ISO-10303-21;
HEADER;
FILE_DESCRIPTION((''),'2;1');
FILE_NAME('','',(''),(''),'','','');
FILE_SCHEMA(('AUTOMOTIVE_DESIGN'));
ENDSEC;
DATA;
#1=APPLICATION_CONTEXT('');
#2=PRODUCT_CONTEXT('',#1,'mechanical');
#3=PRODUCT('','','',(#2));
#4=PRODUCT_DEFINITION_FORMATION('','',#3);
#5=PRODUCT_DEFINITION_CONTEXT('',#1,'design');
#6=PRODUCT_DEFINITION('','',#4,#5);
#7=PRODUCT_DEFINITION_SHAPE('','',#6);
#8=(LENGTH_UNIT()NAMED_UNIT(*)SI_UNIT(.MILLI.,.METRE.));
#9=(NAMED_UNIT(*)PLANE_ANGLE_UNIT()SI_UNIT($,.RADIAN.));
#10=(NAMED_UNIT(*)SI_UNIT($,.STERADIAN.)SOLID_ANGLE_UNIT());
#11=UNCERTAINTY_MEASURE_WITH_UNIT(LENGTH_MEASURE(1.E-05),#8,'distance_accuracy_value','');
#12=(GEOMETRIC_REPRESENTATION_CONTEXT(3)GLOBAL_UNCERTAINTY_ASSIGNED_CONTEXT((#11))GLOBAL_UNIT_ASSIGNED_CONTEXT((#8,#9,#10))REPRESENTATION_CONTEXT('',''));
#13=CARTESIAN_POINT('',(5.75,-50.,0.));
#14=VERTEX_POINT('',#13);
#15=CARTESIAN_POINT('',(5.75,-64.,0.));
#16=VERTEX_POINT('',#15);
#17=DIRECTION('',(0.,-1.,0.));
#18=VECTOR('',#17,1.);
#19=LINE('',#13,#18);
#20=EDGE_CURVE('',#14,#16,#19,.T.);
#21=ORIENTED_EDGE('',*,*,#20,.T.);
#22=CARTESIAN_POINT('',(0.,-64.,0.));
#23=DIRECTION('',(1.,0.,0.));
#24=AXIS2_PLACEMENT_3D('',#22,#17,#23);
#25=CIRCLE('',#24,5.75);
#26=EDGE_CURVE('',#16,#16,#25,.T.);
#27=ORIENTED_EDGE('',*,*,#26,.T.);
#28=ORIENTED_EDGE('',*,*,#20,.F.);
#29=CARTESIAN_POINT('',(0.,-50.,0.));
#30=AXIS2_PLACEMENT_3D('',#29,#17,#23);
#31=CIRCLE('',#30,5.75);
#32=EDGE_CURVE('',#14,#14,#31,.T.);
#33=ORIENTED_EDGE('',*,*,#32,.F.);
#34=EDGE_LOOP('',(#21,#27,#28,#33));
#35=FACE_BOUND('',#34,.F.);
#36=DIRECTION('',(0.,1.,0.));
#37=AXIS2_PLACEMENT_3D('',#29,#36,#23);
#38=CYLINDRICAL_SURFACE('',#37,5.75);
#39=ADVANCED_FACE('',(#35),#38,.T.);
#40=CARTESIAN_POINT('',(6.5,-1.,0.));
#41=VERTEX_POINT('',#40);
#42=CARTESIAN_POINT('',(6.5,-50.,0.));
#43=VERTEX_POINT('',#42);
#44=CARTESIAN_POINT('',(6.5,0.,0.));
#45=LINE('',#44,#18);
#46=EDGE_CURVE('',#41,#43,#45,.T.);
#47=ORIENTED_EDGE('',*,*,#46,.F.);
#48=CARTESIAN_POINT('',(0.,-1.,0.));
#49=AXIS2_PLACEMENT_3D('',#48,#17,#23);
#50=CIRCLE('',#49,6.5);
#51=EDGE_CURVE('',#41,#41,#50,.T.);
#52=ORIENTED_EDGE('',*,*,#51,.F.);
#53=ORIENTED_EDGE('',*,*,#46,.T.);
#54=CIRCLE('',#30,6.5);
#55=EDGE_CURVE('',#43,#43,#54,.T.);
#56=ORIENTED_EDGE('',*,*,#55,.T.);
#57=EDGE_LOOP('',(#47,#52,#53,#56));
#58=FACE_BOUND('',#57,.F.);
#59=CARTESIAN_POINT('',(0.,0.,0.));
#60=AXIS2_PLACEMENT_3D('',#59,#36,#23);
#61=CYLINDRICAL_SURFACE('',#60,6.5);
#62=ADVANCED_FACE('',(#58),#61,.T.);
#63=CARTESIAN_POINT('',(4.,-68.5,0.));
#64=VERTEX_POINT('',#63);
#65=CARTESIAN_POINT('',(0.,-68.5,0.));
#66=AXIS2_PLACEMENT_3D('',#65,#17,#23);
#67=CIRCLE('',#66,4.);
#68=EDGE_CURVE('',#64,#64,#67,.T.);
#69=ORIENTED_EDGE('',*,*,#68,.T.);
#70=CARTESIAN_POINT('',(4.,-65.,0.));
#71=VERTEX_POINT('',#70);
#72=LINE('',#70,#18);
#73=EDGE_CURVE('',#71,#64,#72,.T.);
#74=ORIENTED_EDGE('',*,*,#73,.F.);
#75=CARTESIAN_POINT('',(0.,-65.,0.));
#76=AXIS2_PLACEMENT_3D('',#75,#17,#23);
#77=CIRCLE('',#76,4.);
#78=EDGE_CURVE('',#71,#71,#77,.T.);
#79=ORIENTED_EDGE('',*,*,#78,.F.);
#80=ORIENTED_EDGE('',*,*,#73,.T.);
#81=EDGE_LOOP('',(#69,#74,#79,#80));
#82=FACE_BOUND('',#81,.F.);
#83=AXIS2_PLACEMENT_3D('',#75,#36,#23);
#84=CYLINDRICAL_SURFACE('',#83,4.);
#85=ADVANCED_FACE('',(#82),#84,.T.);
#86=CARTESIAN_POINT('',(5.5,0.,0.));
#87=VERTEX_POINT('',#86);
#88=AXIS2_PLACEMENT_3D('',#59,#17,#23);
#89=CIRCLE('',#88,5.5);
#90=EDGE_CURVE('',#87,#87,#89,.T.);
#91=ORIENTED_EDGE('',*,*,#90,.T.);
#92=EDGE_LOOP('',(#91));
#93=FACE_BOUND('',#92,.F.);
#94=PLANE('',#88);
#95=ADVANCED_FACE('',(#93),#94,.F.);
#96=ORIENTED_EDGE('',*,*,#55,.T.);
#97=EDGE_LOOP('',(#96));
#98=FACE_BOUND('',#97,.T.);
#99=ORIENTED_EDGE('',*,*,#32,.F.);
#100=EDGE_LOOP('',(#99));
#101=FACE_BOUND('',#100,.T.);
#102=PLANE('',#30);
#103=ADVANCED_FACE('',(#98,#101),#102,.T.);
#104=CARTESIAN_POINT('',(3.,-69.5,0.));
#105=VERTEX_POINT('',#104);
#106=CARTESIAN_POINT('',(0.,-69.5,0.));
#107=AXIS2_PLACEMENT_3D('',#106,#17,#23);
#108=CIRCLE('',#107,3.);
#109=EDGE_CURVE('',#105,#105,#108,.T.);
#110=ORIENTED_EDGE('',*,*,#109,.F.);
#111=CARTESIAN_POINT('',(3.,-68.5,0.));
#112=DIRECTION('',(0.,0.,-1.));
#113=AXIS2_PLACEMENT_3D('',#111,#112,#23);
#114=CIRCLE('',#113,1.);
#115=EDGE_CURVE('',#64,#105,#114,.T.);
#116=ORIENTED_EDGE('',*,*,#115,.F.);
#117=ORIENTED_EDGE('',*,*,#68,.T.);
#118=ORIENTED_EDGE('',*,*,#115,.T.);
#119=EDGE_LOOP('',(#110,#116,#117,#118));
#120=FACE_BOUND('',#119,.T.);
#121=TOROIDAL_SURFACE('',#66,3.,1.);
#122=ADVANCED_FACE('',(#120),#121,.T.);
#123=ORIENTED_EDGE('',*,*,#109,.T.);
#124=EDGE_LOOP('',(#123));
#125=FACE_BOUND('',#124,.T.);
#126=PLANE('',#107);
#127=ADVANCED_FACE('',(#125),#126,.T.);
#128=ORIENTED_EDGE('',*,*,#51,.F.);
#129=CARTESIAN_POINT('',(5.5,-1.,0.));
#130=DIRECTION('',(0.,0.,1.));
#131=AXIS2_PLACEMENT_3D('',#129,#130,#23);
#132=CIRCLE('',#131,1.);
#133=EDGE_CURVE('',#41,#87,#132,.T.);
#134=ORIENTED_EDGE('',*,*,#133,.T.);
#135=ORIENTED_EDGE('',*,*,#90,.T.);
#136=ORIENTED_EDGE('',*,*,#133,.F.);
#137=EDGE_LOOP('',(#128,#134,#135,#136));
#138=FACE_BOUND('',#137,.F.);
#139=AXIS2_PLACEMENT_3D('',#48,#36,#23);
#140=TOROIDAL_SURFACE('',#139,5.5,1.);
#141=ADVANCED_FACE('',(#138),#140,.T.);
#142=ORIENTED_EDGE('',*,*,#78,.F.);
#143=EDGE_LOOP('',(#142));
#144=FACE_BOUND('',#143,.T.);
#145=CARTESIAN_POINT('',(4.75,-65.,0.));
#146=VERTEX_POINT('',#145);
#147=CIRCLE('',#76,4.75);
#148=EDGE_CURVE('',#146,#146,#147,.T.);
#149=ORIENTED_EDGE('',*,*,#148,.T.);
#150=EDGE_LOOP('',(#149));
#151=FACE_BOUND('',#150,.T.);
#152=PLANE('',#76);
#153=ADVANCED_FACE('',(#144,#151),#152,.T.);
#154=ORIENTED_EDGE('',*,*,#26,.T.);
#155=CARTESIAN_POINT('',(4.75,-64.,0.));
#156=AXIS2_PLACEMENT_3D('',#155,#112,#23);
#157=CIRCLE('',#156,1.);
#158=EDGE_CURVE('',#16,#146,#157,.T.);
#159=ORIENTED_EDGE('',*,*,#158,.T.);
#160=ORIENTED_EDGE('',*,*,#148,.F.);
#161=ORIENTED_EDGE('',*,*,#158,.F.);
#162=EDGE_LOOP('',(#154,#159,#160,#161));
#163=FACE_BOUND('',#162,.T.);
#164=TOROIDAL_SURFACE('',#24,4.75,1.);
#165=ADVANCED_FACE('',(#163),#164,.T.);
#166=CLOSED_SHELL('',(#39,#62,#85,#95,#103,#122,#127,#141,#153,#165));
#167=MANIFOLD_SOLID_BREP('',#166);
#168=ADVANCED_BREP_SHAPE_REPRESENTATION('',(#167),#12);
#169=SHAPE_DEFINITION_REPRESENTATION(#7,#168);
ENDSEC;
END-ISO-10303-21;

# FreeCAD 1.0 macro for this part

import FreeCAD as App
import Part
import Sketcher
from FreeCAD import Vector


def edges_at(feature, points):
    """Names of the edges that pass closest to the given points."""
    edges = feature.Shape.Edges
    near = lambda p: min(range(len(edges)), key=lambda i: edges[i].distToShape(Part.Vertex(*p))[0])
    return sorted({f"Edge{near(p) + 1}" for p in points})

doc = App.newDocument("Part")
body = doc.addObject("PartDesign::Body", "Body")

# Sketch on XZ plane
sketch1 = body.newObject("Sketcher::SketchObject", "Sketch")
sketch1.AttachmentSupport = (doc.getObject("XZ_Plane"), [""])
sketch1.MapMode = "FlatFace"
sketch1.addGeometry(Part.Circle(Vector(0, 0, 0), Vector(0, 0, 1), 6), False)
sketch1.addConstraint(Sketcher.Constraint("Coincident", 0, 3, -1, 1))
sketch1.addConstraint(Sketcher.Constraint("Diameter", 0, 13.0))
pad1 = body.newObject("PartDesign::Pad", "Pad")
pad1.Profile = sketch1
pad1.Length = 50

# Sketch on XZ plane
sketch2 = body.newObject("Sketcher::SketchObject", "Sketch001")
sketch2.AttachmentSupport = (doc.getObject("XZ_Plane"), [""])
sketch2.MapMode = "FlatFace"
sketch2.AttachmentOffset = App.Placement(Vector(0, 0, 50), App.Rotation())
sketch2.addGeometry(Part.Circle(Vector(0, 0, 0), Vector(0, 0, 1), 6), False)
sketch2.addConstraint(Sketcher.Constraint("Coincident", 0, 3, -1, 1))
sketch2.addConstraint(Sketcher.Constraint("Diameter", 0, 11.5))
pad2 = body.newObject("PartDesign::Pad", "Pad001")
pad2.Profile = sketch2
pad2.Length = 15

# Sketch on XZ plane
sketch3 = body.newObject("Sketcher::SketchObject", "Sketch002")
sketch3.AttachmentSupport = (doc.getObject("XZ_Plane"), [""])
sketch3.MapMode = "FlatFace"
sketch3.AttachmentOffset = App.Placement(Vector(0, 0, 65), App.Rotation())
sketch3.addGeometry(Part.Circle(Vector(0, 0, 0), Vector(0, 0, 1), 4), False)
sketch3.addConstraint(Sketcher.Constraint("Coincident", 0, 3, -1, 1))
sketch3.addConstraint(Sketcher.Constraint("Diameter", 0, 8.0))
pad3 = body.newObject("PartDesign::Pad", "Pad002")
pad3.Profile = sketch3
pad3.Length = 4.5
doc.recompute()

fillet = body.newObject("PartDesign::Fillet", "Fillet")
fillet.Base = (pad3, edges_at(pad3, [(-4, -69.5, 0), (-5.75, -65, 0), (-6.5, 0, 0)]))
fillet.Radius = 1

doc.recompute()
